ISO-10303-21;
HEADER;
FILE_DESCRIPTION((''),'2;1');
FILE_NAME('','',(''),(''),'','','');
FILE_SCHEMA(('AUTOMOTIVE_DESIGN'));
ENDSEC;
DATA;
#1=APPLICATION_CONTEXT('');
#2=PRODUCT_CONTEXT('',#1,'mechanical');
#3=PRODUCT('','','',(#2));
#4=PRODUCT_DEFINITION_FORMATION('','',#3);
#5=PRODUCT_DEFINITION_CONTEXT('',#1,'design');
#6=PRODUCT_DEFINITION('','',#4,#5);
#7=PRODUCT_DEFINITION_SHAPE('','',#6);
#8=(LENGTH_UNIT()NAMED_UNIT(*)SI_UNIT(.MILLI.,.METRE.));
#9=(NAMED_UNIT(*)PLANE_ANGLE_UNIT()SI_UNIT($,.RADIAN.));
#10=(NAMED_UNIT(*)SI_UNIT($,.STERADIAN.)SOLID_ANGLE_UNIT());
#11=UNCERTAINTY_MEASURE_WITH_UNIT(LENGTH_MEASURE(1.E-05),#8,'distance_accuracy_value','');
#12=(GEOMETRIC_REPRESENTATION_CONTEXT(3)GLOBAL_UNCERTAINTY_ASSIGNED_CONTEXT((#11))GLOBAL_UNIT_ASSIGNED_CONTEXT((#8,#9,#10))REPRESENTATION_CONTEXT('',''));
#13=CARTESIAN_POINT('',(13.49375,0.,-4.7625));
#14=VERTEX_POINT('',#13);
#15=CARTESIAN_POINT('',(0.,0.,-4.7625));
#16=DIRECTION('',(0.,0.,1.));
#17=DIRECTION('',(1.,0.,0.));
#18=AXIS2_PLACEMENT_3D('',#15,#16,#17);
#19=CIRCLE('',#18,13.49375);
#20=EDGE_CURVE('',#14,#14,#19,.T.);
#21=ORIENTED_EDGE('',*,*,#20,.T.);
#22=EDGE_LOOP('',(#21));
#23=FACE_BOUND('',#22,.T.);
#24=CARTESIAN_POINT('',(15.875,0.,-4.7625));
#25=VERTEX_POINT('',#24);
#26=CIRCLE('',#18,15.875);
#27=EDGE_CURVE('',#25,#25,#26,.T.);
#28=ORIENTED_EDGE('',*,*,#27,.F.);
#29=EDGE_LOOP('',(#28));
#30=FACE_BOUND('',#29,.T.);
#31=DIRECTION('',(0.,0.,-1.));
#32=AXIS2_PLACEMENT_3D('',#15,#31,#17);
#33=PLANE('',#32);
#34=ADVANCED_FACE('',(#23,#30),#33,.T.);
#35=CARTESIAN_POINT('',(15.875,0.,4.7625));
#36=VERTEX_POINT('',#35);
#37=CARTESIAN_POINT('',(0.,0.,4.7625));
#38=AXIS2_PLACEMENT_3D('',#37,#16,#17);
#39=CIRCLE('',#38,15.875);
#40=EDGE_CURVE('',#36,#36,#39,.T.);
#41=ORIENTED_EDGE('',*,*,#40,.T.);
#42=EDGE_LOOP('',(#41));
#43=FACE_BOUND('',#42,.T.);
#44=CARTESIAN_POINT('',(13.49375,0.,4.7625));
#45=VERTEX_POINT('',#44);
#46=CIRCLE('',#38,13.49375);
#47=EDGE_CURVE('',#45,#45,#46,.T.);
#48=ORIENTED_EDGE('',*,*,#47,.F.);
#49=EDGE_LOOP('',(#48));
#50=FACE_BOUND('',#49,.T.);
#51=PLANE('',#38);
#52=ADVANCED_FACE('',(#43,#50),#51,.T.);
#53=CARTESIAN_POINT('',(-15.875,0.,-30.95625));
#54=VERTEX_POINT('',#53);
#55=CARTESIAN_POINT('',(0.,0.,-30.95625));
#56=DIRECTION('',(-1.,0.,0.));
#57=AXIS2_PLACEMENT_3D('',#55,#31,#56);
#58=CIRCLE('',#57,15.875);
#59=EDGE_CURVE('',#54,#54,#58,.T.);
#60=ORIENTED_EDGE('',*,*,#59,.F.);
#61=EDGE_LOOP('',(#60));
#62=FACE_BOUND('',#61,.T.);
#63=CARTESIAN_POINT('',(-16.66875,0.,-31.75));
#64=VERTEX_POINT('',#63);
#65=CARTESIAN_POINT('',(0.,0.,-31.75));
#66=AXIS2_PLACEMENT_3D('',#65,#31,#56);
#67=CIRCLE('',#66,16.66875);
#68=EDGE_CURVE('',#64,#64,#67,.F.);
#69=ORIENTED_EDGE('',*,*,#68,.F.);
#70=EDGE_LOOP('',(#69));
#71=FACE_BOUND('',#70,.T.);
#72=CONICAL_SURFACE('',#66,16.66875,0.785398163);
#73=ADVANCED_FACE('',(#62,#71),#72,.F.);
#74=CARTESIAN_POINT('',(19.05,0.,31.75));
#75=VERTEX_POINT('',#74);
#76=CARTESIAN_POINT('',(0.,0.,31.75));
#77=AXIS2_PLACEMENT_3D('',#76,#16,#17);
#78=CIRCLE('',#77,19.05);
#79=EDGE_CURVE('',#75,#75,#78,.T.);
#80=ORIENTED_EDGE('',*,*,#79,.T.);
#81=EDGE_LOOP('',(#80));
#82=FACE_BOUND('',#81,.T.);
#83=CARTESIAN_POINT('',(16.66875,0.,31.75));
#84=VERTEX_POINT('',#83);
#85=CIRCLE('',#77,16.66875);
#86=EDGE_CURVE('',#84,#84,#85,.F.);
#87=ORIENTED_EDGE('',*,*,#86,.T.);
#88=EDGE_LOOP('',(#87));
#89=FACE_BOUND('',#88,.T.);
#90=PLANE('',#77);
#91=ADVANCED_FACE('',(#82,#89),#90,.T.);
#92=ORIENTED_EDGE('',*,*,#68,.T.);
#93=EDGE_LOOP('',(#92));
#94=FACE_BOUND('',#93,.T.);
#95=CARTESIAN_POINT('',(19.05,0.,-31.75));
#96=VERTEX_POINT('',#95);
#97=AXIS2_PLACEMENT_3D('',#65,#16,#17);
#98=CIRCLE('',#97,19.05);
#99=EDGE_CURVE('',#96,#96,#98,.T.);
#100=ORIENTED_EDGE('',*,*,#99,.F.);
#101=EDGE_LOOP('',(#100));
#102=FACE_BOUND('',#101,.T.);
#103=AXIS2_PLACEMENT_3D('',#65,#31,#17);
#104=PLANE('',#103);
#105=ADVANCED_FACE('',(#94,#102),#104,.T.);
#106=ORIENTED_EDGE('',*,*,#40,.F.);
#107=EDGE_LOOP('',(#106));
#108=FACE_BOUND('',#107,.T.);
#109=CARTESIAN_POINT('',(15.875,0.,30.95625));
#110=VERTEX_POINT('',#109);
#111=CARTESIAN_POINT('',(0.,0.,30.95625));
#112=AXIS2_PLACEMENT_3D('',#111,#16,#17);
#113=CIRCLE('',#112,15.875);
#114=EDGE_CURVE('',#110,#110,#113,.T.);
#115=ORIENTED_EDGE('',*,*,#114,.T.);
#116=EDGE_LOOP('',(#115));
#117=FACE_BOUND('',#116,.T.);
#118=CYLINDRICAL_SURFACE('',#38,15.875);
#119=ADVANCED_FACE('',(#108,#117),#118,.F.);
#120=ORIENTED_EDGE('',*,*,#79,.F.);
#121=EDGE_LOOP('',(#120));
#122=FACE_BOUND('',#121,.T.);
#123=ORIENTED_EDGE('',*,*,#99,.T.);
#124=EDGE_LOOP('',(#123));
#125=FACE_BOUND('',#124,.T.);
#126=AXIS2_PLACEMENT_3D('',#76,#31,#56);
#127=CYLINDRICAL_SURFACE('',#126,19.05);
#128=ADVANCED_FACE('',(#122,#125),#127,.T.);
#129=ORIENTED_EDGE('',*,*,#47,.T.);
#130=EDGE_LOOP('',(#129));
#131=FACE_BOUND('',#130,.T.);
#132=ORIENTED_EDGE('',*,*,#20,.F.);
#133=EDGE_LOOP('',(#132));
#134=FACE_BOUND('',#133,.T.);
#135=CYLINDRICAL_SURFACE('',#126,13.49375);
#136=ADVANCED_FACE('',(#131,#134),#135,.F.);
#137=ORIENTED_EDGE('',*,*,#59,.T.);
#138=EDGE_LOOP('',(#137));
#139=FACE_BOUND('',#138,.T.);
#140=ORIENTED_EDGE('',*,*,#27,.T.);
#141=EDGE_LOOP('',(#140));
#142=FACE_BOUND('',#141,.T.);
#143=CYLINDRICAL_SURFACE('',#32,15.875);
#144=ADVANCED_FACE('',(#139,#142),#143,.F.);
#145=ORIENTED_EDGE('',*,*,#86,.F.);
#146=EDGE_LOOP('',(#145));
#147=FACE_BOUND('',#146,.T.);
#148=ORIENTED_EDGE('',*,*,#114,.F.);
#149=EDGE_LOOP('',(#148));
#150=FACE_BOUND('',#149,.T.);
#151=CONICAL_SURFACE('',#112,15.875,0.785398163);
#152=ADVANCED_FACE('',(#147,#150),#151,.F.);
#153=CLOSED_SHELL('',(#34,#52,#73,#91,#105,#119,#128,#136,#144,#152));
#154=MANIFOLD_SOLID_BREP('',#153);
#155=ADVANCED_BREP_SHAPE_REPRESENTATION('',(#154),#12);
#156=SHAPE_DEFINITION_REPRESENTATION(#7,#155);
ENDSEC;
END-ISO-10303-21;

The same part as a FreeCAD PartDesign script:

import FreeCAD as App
import Part
import Sketcher
Q = App.Units.Quantity


def edges_at(feature, points):
    """Names of the edges that pass closest to the given points."""
    edges = feature.Shape.Edges
    near = lambda p: min(range(len(edges)), key=lambda i: edges[i].distToShape(Part.Vertex(*p))[0])
    return sorted({f"Edge{near(p) + 1}" for p in points})

doc = App.newDocument("Part")
body = doc.addObject("PartDesign::Body", "Body")

# Sketch on XY plane
sketch1 = body.newObject("Sketcher::SketchObject", "Sketch")
sketch1.AttachmentSupport = (doc.getObject("XY_Plane"), [""])
sketch1.MapMode = "FlatFace"
sketch1.addGeometry(Part.Circle(App.Vector(0, 0, 0), App.Vector(0, 0, 1), 19), False)
sketch1.addGeometry(Part.Circle(App.Vector(0, 0, 0), App.Vector(0, 0, 1), 13), False)
sketch1.addConstraint(Sketcher.Constraint("Coincident", 0, 3, -1, 1))
sketch1.addConstraint(Sketcher.Constraint("Coincident", 1, 3, -1, 1))
sketch1.addConstraint(Sketcher.Constraint("Diameter", 0, Q("1.5 in")))
sketch1.addConstraint(Sketcher.Constraint("Diameter", 1, Q("1.0625 in")))
pad1 = body.newObject("PartDesign::Pad", "Pad")
pad1.Profile = sketch1
pad1.Length = Q("1.25 in")

# Sketch on XY plane
sketch2 = body.newObject("Sketcher::SketchObject", "Sketch001")
sketch2.AttachmentSupport = (doc.getObject("XY_Plane"), [""])
sketch2.MapMode = "FlatFace"
sketch2.AttachmentOffset = App.Placement(App.Vector(0, 0, 1.25 * 25.4), App.Rotation())
sketch2.addGeometry(Part.Circle(App.Vector(0, 0, 0), App.Vector(0, 0, 1), 16), False)
sketch2.addConstraint(Sketcher.Constraint("Coincident", 0, 3, -1, 1))
sketch2.addConstraint(Sketcher.Constraint("Diameter", 0, Q("1.25 in")))
pocket1 = body.newObject("PartDesign::Pocket", "Pocket")
pocket1.Profile = sketch2
pocket1.Length = Q("1.0625 in")
body2 = doc.addObject("PartDesign::Body", "Body001")
doc.recompute()

body2.BaseFeature = body
doc.recompute()

mirroring = doc.addObject("Part::Mirroring", "Mirroring")
mirroring.Source = body
mirroring.Base = App.Vector(0, 0, 0)
mirroring.Normal = App.Vector(0, 0, 1)
body3 = doc.addObject("PartDesign::Body", "Body002")
body3.BaseFeature = mirroring
boolean = body2.newObject("PartDesign::Boolean", "Boolean")
boolean.Type = "Fuse"
boolean.addObjects([body3])
doc.recompute()

chamfer = body2.newObject("PartDesign::Chamfer", "Chamfer")
chamfer.Base = (boolean, edges_at(boolean, [(-15.875, 0, 31.75), (-15.875, 0, -31.75)]))
chamfer.Size = Q("0.03125 in")
mirroring.Visibility = False

doc.recompute()
